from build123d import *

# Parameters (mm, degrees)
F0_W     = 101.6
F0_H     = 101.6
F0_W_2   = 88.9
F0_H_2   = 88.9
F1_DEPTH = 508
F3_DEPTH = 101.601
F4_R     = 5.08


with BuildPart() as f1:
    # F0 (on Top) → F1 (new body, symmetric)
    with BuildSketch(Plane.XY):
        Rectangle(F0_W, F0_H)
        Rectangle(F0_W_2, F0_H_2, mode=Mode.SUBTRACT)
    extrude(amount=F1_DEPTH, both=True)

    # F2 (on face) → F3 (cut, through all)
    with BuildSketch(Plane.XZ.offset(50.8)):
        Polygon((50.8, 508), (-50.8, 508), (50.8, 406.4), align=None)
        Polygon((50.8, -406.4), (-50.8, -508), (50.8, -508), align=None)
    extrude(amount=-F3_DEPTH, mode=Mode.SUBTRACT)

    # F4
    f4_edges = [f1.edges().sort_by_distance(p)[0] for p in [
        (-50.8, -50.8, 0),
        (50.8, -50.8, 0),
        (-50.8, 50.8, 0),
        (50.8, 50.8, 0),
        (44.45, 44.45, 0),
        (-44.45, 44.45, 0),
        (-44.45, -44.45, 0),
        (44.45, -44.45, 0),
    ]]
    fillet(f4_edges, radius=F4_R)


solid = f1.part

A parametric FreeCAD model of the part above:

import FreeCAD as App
import Part
import Sketcher
Q = App.Units.Quantity


def edges_at(feature, points):
    """Names of the edges that pass closest to the given points."""
    edges = feature.Shape.Edges
    near = lambda p: min(range(len(edges)), key=lambda i: edges[i].distToShape(Part.Vertex(*p))[0])
    return sorted({f"Edge{near(p) + 1}" for p in points})

doc = App.newDocument("Part")
body = doc.addObject("PartDesign::Body", "Body")

# Sketch on XY plane
sketch1 = body.newObject("Sketcher::SketchObject", "Sketch")
sketch1.AttachmentSupport = (doc.getObject("XY_Plane"), [""])
sketch1.MapMode = "FlatFace"
sketch1.addGeometry([
    Part.LineSegment(App.Vector(-51, 51, 0), App.Vector(-51, -51, 0)),  # 0
    Part.LineSegment(App.Vector(-51, -51, 0), App.Vector(51, -51, 0)),  # 1
    Part.LineSegment(App.Vector(51, -51, 0), App.Vector(51, 51, 0)),  # 2
    Part.LineSegment(App.Vector(51, 51, 0), App.Vector(-51, 51, 0)),  # 3
    Part.LineSegment(App.Vector(44, -44, 0), App.Vector(-44, -44, 0)),  # 4
    Part.LineSegment(App.Vector(-44, -44, 0), App.Vector(-44, 44, 0)),  # 5
    Part.LineSegment(App.Vector(-44, 44, 0), App.Vector(44, 44, 0)),  # 6
    Part.LineSegment(App.Vector(44, 44, 0), App.Vector(44, -44, 0)),  # 7
], False)
sketch1.addConstraint([
    Sketcher.Constraint("Coincident", 0, 2, 1, 1),
    Sketcher.Constraint("Coincident", 1, 2, 2, 1),
    Sketcher.Constraint("Coincident", 2, 2, 3, 1),
    Sketcher.Constraint("Coincident", 3, 2, 0, 1),
    Sketcher.Constraint("Coincident", 4, 2, 5, 1),
    Sketcher.Constraint("Coincident", 5, 2, 6, 1),
    Sketcher.Constraint("Coincident", 6, 2, 7, 1),
    Sketcher.Constraint("Coincident", 7, 2, 4, 1),
    Sketcher.Constraint("Vertical", 0),
    Sketcher.Constraint("Horizontal", 1),
    Sketcher.Constraint("Vertical", 2),
    Sketcher.Constraint("Horizontal", 3),
    Sketcher.Constraint("Horizontal", 4),
    Sketcher.Constraint("Vertical", 5),
    Sketcher.Constraint("Horizontal", 6),
    Sketcher.Constraint("Vertical", 7),
    Sketcher.Constraint("Symmetric", 0, 2, 2, 2, -1, 1),
    Sketcher.Constraint("Symmetric", 4, 2, 6, 2, -1, 1),
    Sketcher.Constraint("Equal", 3, 0),
    Sketcher.Constraint("Equal", 6, 5),
    Sketcher.Constraint("DistanceX", 1, 1, 1, 2, Q("4 in")),
    Sketcher.Constraint("DistanceX", 4, 2, 4, 1, Q("3.5 in")),
])
pad1 = body.newObject("PartDesign::Pad", "Pad")
pad1.Profile = sketch1
pad1.Length = Q("40 in")
pad1.Midplane = True

# Sketch on XZ plane
sketch2 = body.newObject("Sketcher::SketchObject", "Sketch001")
sketch2.AttachmentSupport = (doc.getObject("XZ_Plane"), [""])
sketch2.MapMode = "FlatFace"
sketch2.AttachmentOffset = App.Placement(App.Vector(0, 0, 2 * 25.4), App.Rotation())
sketch2.addGeometry([
    Part.LineSegment(App.Vector(51, 508, 0), App.Vector(-51, 508, 0)),  # 0
    Part.LineSegment(App.Vector(-51, 508, 0), App.Vector(51, 406, 0)),  # 1
    Part.LineSegment(App.Vector(51, 406, 0), App.Vector(51, 508, 0)),  # 2
    Part.LineSegment(App.Vector(51, -406, 0), App.Vector(-51, -508, 0)),  # 3
    Part.LineSegment(App.Vector(-51, -508, 0), App.Vector(51, -508, 0)),  # 4
    Part.LineSegment(App.Vector(51, -508, 0), App.Vector(51, -406, 0)),  # 5
], False)
sketch2.addConstraint([
    Sketcher.Constraint("Coincident", 0, 2, 1, 1),
    Sketcher.Constraint("Coincident", 1, 2, 2, 1),
    Sketcher.Constraint("Coincident", 2, 2, 0, 1),
    Sketcher.Constraint("Coincident", 3, 2, 4, 1),
    Sketcher.Constraint("Coincident", 4, 2, 5, 1),
    Sketcher.Constraint("Coincident", 5, 2, 3, 1),
    Sketcher.Constraint("Horizontal", 0),
    Sketcher.Constraint("Vertical", 2),
    Sketcher.Constraint("Horizontal", 4),
    Sketcher.Constraint("Vertical", 5),
    Sketcher.Constraint("Symmetric", 2, 2, 3, 2, -1, 1),
    Sketcher.Constraint("Symmetric", 1, 2, 5, 2, -1),
    Sketcher.Constraint("Perpendicular", 1, 3),
    Sketcher.Constraint("Vertical", 0, 2, 3, 2),
    Sketcher.Constraint("DistanceX", 0, 2, 0, 1, Q("4 in")),
    Sketcher.Constraint("DistanceY", -1, 1, 0, 2, Q("20 in")),
])
pocket1 = body.newObject("PartDesign::Pocket", "Pocket")
pocket1.Profile = sketch2
pocket1.Type = "ThroughAll"
doc.recompute()

fillet = body.newObject("PartDesign::Fillet", "Fillet")
fillet.Base = (pocket1, edges_at(pocket1, [
    (-50.8, -50.8, 0),
    (50.8, -50.8, 0),
    (-50.8, 50.8, 0),
    (50.8, 50.8, 0),
    (44.45, 44.45, 0),
    (-44.45, 44.45, 0),
    (-44.45, -44.45, 0),
    (44.45, -44.45, 0),
]))
fillet.Radius = Q("0.2 in")

doc.recompute()
